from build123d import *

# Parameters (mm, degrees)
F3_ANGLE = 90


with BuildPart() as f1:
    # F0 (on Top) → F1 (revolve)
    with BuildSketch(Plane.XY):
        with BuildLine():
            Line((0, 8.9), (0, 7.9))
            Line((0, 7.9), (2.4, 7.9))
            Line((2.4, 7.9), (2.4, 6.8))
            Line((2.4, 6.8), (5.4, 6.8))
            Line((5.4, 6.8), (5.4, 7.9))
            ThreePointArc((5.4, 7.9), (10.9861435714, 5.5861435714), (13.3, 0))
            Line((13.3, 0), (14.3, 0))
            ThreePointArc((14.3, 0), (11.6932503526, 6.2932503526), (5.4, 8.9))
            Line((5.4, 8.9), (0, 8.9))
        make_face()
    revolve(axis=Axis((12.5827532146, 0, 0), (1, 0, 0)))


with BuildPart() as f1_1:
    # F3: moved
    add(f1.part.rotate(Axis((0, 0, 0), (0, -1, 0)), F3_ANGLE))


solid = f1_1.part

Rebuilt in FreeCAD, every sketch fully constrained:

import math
import FreeCAD as App
import Part
import Sketcher

V = App.Vector

doc = App.newDocument("Part")
body = doc.addObject("PartDesign::Body", "Body")

# Sketch on XY plane
sketch1 = doc.addObject("Sketcher::SketchObject", "Sketch")
body.addObject(sketch1)
sketch1.AttachmentSupport = (doc.XY_Plane, [""])
sketch1.MapMode = "FlatFace"
sketch1.addGeometry([
    Part.LineSegment(V(0, 8.9, 0), V(0, 7.9, 0)),  # 0
    Part.LineSegment(V(0, 7.9, 0), V(2.4, 7.9, 0)),  # 1
    Part.LineSegment(V(2.4, 7.9, 0), V(2.4, 6.8, 0)),  # 2
    Part.LineSegment(V(2.4, 6.8, 0), V(5.4, 6.8, 0)),  # 3
    Part.LineSegment(V(5.4, 6.8, 0), V(5.4, 7.9, 0)),  # 4
    Part.ArcOfCircle(Part.Circle(V(5.4, 0, 0), V(0, 0, 1), 7.9), math.radians(0), math.radians(90)),  # 5
    Part.LineSegment(V(13.3, 0, 0), V(14.3, 0, 0)),  # 6
    Part.ArcOfCircle(Part.Circle(V(5.4, 0, 0), V(0, 0, 1), 8.9), math.radians(0), math.radians(90)),  # 7
    Part.LineSegment(V(5.4, 8.9, 0), V(0, 8.9, 0)),  # 8
], False)
sketch1.addConstraint([
    Sketcher.Constraint("Coincident", 0, 2, 1, 1),
    Sketcher.Constraint("Coincident", 1, 2, 2, 1),
    Sketcher.Constraint("Coincident", 2, 2, 3, 1),
    Sketcher.Constraint("Coincident", 3, 2, 4, 1),
    Sketcher.Constraint("Coincident", 4, 2, 5, 2),
    Sketcher.Constraint("Coincident", 5, 1, 6, 1),
    Sketcher.Constraint("Coincident", 6, 2, 7, 1),
    Sketcher.Constraint("Tangent", 7, 2, 8, 1),
    Sketcher.Constraint("Coincident", 8, 2, 0, 1),
    Sketcher.Constraint("Vertical", 0),
    Sketcher.Constraint("Horizontal", 1),
    Sketcher.Constraint("Vertical", 2),
    Sketcher.Constraint("Horizontal", 3),
    Sketcher.Constraint("Vertical", 4),
    Sketcher.Constraint("Horizontal", 6),
    Sketcher.Constraint("Horizontal", 8),
    Sketcher.Constraint("Coincident", 7, 3, 5, 3),
    Sketcher.Constraint("PointOnObject", 5, 3, -1),
    Sketcher.Constraint("PointOnObject", 0, 2, -2),
    Sketcher.Constraint("PointOnObject", 5, 1, -1),
    Sketcher.Constraint("Horizontal", 1, 2, 4, 2),
    Sketcher.Constraint("Vertical", 7, 3, 3, 2),
    Sketcher.Constraint("Radius", 5, 7.9),
    Sketcher.Constraint("Radius", 7, 8.9),
    Sketcher.Constraint("DistanceX", 3, 1, 3, 2, 3.0),
    Sketcher.Constraint("DistanceX", 1, 1, 1, 2, 2.4),
    Sketcher.Constraint("DistanceY", 2, 2, 2, 1, 1.1),
])
revolution = doc.addObject("PartDesign::Revolution", "Revolution")
body.addObject(revolution)
revolution.Profile = sketch1
revolution.ReferenceAxis = (sketch1, ["H_Axis"])
revolution.Angle = 360
body2 = doc.addObject("PartDesign::Body", "Body001")
doc.recompute()

body.Placement = App.Placement(V(0, 0, 0), App.Rotation(V(0, -1, 0), 90))
boolean = doc.addObject("PartDesign::Boolean", "Boolean")
body2.addObject(boolean)
boolean.Type = "Fuse"
boolean.addObjects([body])

doc.recompute()
